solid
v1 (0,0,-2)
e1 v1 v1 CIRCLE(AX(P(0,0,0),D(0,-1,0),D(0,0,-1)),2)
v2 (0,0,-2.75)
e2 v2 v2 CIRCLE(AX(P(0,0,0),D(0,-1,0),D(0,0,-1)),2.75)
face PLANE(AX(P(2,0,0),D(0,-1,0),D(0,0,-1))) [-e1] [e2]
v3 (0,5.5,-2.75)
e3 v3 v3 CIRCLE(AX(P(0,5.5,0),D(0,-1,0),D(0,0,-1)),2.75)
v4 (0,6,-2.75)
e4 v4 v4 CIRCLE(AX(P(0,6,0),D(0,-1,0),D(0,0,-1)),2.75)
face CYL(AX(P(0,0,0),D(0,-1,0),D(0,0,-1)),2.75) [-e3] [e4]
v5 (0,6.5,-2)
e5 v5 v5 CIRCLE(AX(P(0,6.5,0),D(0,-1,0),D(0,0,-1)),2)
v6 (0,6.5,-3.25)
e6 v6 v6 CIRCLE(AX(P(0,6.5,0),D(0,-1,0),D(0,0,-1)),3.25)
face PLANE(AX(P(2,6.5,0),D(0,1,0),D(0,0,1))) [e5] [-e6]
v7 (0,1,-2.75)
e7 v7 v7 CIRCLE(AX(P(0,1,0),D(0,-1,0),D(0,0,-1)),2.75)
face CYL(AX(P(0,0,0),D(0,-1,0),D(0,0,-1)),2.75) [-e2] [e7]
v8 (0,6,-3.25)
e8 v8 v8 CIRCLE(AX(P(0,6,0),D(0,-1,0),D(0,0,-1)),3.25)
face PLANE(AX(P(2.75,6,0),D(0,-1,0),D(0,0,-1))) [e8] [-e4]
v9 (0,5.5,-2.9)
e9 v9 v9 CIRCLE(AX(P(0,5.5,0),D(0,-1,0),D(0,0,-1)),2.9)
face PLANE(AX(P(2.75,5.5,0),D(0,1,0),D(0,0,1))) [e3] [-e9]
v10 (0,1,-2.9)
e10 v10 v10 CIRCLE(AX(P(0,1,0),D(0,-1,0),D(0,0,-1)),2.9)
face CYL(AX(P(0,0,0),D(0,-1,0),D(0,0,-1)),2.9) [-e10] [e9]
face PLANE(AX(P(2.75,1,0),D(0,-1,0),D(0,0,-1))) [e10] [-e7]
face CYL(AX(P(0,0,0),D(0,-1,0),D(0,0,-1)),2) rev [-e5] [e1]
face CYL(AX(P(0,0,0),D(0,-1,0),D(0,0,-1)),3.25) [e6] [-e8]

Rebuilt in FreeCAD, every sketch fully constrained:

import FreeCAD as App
import Part
import Sketcher

V = App.Vector
Q = App.Units.Quantity

doc = App.newDocument("Part")
body = doc.addObject("PartDesign::Body", "Body")

# Sketch on XY plane
sketch1 = body.newObject("Sketcher::SketchObject", "Sketch")
sketch1.AttachmentSupport = (doc.getObject("XY_Plane"), [""])
sketch1.MapMode = "FlatFace"
sketch1.addGeometry([
    Part.LineSegment(V(3.25, 6.5, 0), V(2, 6.5, 0)),  # 0
    Part.LineSegment(V(2, 6.5, 0), V(2, 0, 0)),  # 1
    Part.LineSegment(V(2, 0, 0), V(2.75, 0, 0)),  # 2
    Part.LineSegment(V(2.75, 0, 0), V(2.75, 1, 0)),  # 3
    Part.LineSegment(V(2.75, 1, 0), V(2.9, 1, 0)),  # 4
    Part.LineSegment(V(2.9, 1, 0), V(2.9, 5.5, 0)),  # 5
    Part.LineSegment(V(2.9, 5.5, 0), V(2.75, 5.5, 0)),  # 6
    Part.LineSegment(V(2.75, 5.5, 0), V(2.75, 6, 0)),  # 7
    Part.LineSegment(V(2.75, 6, 0), V(3.25, 6, 0)),  # 8
    Part.LineSegment(V(3.25, 6, 0), V(3.25, 6.5, 0)),  # 9
], False)
sketch1.addConstraint([
    Sketcher.Constraint("Coincident", 0, 2, 1, 1),
    Sketcher.Constraint("Coincident", 1, 2, 2, 1),
    Sketcher.Constraint("Coincident", 2, 2, 3, 1),
    Sketcher.Constraint("Coincident", 3, 2, 4, 1),
    Sketcher.Constraint("Coincident", 4, 2, 5, 1),
    Sketcher.Constraint("Coincident", 5, 2, 6, 1),
    Sketcher.Constraint("Coincident", 6, 2, 7, 1),
    Sketcher.Constraint("Coincident", 7, 2, 8, 1),
    Sketcher.Constraint("Coincident", 8, 2, 9, 1),
    Sketcher.Constraint("Coincident", 9, 2, 0, 1),
    Sketcher.Constraint("Horizontal", 0),
    Sketcher.Constraint("Vertical", 1),
    Sketcher.Constraint("Horizontal", 2),
    Sketcher.Constraint("Vertical", 3),
    Sketcher.Constraint("Horizontal", 4),
    Sketcher.Constraint("Vertical", 5),
    Sketcher.Constraint("Horizontal", 6),
    Sketcher.Constraint("Vertical", 7),
    Sketcher.Constraint("Horizontal", 8),
    Sketcher.Constraint("Vertical", 9),
    Sketcher.Constraint("PointOnObject", 1, 2, -1),
    Sketcher.Constraint("Vertical", 3, 2, 6, 2),
    Sketcher.Constraint("Equal", 8, 7),
    Sketcher.Constraint("Equal", 7, 9),
    Sketcher.Constraint("DistanceY", 3, 1, 3, 2, Q("1 mm")),
    Sketcher.Constraint("DistanceX", 8, 1, 8, 2, Q("0.5 mm")),
    Sketcher.Constraint("DistanceY", 1, 2, 1, 1, Q("6.5 mm")),
    Sketcher.Constraint("DistanceX", -1, 1, 0, 2, Q("2 mm")),
    Sketcher.Constraint("DistanceX", 0, 2, 0, 1, Q("1.25 mm")),
    Sketcher.Constraint("DistanceX", 4, 1, 4, 2, Q("0.15 mm")),
])
revolution = body.newObject("PartDesign::Revolution", "Revolution")
revolution.Profile = sketch1
revolution.ReferenceAxis = (sketch1, ["V_Axis"])
revolution.Angle = 360

doc.recompute()
